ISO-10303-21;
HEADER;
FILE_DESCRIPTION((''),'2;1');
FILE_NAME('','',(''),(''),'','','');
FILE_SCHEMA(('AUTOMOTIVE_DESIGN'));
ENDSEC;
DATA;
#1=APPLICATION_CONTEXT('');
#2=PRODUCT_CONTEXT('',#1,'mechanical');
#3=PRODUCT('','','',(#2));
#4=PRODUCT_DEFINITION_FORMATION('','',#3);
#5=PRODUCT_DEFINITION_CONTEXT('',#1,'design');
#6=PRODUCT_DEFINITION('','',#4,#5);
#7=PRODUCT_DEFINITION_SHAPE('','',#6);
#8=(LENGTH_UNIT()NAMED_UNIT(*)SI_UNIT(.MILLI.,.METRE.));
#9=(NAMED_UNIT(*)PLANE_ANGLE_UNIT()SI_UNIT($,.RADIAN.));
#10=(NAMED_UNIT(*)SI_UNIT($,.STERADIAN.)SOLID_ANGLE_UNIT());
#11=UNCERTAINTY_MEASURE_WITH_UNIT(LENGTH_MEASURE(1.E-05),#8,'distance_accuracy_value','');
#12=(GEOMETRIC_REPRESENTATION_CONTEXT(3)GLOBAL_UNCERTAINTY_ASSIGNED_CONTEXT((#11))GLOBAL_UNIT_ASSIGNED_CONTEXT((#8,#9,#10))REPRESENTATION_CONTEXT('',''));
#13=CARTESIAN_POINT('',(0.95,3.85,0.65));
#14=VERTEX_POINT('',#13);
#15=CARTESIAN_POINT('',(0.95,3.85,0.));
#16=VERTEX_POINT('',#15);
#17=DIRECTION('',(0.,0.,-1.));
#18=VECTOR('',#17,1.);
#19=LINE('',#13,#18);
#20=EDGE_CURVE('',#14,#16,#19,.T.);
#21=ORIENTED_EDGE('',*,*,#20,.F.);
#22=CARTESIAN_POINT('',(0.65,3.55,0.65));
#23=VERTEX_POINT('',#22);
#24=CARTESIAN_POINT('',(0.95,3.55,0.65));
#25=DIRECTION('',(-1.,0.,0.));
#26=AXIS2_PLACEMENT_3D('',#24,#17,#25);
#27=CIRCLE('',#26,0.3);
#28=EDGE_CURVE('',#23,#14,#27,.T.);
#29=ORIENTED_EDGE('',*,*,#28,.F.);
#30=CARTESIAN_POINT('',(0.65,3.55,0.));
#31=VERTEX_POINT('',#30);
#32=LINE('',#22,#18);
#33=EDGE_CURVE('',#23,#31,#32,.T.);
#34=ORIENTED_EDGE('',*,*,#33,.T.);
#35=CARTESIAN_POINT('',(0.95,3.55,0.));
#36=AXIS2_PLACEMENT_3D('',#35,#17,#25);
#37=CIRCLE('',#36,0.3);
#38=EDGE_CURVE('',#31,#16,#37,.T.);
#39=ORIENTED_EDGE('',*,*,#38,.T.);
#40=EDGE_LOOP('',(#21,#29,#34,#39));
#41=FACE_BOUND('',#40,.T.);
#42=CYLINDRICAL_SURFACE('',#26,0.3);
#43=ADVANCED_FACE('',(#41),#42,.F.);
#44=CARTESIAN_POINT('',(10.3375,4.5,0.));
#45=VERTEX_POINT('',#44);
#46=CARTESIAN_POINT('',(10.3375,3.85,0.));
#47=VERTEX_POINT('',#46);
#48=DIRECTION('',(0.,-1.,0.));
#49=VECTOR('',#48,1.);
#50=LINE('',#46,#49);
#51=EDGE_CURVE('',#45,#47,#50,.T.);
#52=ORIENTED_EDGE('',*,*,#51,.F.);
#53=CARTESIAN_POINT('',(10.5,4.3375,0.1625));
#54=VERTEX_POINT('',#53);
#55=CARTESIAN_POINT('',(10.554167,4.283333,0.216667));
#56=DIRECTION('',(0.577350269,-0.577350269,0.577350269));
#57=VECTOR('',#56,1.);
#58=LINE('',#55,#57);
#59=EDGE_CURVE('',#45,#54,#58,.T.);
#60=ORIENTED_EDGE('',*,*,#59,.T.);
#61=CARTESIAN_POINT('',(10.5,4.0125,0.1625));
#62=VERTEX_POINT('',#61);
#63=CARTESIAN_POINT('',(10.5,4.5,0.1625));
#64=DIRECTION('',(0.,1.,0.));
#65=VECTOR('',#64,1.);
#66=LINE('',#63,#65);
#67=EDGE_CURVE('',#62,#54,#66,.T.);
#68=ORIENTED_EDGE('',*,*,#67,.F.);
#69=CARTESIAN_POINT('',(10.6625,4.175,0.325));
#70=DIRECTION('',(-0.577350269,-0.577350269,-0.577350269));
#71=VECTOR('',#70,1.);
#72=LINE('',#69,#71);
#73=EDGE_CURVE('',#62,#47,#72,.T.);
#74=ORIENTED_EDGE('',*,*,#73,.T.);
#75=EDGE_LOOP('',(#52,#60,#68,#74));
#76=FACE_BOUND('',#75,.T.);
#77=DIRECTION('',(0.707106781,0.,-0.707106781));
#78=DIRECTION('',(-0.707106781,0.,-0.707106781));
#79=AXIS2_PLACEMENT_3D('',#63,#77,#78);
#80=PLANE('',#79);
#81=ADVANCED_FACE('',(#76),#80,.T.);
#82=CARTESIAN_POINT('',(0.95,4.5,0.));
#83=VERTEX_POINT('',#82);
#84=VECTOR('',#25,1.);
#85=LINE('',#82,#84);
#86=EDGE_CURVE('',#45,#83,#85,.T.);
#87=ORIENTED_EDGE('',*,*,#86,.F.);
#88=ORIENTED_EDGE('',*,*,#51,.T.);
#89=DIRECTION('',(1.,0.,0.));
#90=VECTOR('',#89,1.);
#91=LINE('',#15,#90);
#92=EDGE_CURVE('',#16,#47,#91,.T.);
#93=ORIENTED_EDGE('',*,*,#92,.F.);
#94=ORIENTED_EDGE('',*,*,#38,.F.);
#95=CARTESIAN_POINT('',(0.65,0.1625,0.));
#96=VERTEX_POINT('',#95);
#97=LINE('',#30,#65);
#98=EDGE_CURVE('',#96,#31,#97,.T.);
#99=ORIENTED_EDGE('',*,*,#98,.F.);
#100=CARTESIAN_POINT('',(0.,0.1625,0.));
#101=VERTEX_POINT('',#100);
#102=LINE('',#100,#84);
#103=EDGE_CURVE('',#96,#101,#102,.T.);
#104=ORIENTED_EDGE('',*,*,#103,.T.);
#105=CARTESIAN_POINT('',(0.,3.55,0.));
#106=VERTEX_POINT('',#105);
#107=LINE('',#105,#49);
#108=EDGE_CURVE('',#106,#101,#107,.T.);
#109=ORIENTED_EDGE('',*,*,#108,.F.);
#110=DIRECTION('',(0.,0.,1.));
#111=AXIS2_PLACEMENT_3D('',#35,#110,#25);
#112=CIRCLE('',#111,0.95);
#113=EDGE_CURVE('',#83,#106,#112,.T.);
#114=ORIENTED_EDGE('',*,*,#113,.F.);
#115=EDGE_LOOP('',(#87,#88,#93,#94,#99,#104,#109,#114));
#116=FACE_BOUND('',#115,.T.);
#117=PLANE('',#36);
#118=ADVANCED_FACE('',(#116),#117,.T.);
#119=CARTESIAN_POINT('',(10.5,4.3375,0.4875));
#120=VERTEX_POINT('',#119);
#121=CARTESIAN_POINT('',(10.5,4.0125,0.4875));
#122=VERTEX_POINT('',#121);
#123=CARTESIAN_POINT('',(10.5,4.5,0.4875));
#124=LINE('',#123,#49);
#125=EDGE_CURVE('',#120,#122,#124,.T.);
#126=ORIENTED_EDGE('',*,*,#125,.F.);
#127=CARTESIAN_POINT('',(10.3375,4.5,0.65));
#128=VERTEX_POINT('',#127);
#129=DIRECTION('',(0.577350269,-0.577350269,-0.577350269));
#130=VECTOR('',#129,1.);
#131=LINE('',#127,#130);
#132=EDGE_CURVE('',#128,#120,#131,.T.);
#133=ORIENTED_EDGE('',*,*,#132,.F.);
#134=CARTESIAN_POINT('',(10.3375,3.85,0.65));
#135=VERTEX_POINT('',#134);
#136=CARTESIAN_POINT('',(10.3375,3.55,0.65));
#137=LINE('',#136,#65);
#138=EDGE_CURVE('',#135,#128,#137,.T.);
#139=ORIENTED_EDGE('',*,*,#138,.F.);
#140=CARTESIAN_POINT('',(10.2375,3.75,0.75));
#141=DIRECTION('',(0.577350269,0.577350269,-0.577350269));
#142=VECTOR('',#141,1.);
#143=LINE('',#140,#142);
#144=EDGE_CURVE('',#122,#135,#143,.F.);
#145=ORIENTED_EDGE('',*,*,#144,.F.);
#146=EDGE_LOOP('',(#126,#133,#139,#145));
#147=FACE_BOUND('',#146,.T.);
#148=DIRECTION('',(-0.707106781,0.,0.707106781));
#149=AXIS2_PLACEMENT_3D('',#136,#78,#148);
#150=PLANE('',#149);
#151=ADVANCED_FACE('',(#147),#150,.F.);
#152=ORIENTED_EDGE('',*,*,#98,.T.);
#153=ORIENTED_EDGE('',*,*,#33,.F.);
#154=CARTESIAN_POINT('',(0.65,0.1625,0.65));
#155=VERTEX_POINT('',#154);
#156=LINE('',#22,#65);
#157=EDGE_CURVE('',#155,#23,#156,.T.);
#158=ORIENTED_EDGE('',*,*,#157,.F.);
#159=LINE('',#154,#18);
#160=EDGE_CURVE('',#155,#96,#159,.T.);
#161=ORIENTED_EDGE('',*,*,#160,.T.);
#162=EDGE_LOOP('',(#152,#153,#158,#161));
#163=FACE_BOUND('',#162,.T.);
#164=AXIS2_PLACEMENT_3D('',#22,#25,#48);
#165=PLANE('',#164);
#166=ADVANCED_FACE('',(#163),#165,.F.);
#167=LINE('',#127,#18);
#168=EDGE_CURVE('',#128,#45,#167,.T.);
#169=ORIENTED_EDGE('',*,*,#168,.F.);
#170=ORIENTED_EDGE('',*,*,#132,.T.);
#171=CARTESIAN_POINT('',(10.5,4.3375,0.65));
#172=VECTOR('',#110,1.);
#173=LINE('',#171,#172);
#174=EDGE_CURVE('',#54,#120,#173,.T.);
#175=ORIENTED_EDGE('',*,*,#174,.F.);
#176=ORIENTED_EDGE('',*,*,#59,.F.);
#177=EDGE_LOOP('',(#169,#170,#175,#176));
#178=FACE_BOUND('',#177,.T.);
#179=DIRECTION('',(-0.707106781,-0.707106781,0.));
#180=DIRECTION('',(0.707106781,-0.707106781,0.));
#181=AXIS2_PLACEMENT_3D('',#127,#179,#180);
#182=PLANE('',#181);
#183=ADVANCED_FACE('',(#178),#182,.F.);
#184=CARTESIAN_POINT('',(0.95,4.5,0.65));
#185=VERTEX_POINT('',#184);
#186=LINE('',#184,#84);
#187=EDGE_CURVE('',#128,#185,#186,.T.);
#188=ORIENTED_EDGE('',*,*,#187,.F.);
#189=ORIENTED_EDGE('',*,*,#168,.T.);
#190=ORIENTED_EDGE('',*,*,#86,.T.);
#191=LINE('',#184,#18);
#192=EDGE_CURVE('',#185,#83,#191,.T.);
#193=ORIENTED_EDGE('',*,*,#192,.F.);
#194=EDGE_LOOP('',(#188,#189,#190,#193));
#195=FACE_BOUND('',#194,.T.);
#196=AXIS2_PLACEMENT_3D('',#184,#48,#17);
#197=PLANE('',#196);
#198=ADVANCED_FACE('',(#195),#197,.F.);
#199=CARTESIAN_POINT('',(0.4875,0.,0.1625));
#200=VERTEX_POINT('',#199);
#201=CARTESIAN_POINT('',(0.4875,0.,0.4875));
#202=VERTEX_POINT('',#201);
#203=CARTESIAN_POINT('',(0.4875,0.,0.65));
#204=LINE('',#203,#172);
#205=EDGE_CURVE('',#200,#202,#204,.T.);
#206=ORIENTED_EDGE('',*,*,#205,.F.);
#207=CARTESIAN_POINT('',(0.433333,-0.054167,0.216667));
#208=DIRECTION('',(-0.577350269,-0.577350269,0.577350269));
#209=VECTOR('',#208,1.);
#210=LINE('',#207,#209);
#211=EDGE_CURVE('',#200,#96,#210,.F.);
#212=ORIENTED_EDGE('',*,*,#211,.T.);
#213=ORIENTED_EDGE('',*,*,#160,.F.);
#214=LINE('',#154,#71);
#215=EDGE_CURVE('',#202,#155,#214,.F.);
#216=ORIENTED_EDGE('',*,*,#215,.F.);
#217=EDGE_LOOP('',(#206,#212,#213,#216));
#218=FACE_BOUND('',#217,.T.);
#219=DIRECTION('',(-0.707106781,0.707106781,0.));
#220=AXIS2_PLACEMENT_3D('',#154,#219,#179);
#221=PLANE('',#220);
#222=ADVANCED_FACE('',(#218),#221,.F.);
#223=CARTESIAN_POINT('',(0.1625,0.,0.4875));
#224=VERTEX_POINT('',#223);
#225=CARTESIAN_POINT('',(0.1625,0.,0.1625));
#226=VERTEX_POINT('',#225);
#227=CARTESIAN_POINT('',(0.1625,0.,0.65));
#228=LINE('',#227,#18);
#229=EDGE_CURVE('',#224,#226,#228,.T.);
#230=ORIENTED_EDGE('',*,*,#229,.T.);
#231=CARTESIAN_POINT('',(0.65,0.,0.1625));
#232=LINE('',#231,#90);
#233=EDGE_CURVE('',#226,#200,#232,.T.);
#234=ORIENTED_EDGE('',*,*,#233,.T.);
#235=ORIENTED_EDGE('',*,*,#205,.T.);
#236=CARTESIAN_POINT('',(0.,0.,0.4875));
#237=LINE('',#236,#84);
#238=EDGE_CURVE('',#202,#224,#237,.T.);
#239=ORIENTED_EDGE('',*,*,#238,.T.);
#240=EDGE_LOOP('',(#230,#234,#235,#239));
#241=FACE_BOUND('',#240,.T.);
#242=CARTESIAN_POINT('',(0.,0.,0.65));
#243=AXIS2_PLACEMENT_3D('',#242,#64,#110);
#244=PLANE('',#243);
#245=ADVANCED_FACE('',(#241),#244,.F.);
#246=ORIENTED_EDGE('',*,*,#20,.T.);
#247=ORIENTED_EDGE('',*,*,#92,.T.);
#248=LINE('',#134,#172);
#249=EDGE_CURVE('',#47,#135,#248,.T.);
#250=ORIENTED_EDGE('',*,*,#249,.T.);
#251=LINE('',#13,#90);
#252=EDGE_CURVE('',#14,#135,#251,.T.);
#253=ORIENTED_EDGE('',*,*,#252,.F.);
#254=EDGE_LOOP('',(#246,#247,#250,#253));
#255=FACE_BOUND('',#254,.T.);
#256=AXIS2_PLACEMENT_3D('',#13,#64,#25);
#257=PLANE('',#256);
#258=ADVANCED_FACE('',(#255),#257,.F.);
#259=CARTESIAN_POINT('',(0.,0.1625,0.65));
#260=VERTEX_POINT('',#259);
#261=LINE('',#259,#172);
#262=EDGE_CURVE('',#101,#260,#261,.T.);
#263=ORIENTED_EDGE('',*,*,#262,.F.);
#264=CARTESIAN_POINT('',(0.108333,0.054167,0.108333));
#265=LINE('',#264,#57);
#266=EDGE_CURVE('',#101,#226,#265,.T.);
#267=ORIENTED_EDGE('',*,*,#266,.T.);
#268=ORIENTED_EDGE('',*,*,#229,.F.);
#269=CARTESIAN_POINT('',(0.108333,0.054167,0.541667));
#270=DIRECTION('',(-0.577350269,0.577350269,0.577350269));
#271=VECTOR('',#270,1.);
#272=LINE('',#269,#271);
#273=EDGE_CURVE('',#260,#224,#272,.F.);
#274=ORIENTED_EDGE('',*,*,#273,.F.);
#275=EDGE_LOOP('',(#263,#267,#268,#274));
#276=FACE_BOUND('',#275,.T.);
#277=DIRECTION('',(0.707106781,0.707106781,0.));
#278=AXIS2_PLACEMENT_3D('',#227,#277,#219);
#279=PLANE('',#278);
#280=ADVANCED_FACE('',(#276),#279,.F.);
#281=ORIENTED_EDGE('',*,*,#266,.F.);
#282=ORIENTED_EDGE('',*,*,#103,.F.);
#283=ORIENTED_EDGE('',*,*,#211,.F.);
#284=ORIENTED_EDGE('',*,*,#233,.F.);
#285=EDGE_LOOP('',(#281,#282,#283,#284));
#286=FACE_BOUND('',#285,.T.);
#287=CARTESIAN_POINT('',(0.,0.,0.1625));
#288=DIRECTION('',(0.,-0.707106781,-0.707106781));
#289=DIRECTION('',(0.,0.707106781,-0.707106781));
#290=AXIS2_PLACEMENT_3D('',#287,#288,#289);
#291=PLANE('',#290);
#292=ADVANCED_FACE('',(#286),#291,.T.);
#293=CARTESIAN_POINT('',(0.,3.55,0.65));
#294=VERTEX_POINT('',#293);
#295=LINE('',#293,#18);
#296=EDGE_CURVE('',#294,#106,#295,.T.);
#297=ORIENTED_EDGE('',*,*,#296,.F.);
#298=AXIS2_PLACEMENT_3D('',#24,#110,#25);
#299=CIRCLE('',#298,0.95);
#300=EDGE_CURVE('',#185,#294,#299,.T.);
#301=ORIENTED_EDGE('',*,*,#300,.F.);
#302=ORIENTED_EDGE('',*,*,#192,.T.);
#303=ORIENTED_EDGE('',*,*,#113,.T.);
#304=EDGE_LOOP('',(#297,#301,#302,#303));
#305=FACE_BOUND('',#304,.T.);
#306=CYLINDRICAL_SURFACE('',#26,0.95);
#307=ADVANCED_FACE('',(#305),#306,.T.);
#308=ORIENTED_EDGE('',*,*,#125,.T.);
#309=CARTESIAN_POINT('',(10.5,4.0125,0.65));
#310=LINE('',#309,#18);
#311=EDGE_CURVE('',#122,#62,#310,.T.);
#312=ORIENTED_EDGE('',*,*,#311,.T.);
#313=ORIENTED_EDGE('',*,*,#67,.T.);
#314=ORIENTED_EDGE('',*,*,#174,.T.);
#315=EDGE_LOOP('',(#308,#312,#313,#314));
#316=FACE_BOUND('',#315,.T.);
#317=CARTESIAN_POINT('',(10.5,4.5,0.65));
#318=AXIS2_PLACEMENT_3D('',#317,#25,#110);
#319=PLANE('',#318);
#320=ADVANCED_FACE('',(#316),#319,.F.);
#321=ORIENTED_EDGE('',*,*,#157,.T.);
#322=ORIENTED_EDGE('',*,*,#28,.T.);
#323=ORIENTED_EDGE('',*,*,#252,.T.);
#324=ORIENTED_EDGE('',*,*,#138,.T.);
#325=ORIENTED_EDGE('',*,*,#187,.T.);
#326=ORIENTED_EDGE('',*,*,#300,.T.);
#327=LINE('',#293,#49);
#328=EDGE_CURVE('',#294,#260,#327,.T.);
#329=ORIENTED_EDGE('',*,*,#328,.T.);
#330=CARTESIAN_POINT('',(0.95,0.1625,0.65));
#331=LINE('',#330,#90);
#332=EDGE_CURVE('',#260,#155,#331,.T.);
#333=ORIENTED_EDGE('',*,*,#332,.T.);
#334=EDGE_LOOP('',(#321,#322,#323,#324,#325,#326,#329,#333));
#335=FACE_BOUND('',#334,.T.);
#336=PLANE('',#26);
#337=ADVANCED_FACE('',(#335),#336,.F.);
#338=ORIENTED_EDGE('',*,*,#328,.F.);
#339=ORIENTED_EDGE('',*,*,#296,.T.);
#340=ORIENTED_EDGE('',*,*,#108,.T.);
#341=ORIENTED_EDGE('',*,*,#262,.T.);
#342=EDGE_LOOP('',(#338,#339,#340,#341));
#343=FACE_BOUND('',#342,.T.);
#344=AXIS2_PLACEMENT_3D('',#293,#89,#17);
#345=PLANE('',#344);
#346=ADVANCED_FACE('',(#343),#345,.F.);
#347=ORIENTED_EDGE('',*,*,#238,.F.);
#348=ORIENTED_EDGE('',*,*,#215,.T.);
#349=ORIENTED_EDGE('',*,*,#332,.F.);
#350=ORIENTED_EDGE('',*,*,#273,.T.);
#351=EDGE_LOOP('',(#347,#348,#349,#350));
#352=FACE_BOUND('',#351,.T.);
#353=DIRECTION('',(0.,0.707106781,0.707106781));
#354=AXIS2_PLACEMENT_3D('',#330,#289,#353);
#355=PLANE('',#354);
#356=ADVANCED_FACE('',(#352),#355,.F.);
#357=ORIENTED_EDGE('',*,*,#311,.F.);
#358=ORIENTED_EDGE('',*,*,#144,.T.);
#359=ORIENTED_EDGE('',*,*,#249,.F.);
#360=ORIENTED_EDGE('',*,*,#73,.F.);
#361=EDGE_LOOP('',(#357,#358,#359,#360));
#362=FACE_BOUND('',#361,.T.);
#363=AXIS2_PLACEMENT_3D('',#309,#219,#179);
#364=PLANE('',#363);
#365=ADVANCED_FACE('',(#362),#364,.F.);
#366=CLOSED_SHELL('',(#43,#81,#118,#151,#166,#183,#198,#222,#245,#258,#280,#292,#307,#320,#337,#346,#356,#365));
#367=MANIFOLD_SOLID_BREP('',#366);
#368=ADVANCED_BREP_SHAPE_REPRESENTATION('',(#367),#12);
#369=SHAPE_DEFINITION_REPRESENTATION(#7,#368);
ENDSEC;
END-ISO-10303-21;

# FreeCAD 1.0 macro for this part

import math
import FreeCAD as App
import Part
import Sketcher
from FreeCAD import Vector
Q = App.Units.Quantity


def edges_at(feature, points):
    """Names of the edges that pass closest to the given points."""
    edges = feature.Shape.Edges
    near = lambda p: min(range(len(edges)), key=lambda i: edges[i].distToShape(Part.Vertex(*p))[0])
    return sorted({f"Edge{near(p) + 1}" for p in points})

doc = App.newDocument("Part")
body = doc.addObject("PartDesign::Body", "Body")

sketch1 = body.newObject("Sketcher::SketchObject", "Sketch")
sketch1.AttachmentSupport = (doc.getObject("XY_Plane"), [""])
sketch1.MapMode = "FlatFace"
sketch1.addGeometry([
    Part.LineSegment(Vector(0, 3.55, 0), Vector(0, 0, 0)),
    Part.LineSegment(Vector(0, 0, 0), Vector(0.65, 0, 0)),
    Part.LineSegment(Vector(0.65, 0, 0), Vector(0.65, 3.55, 0)),
    Part.ArcOfCircle(Part.Circle(Vector(0.95, 3.55, 0), Vector(0, 0, 1), 0.3), math.radians(90), math.radians(180)),
    Part.LineSegment(Vector(0.95, 3.85, 0), Vector(10.5, 3.85, 0)),
    Part.LineSegment(Vector(10.5, 3.85, 0), Vector(10.5, 4.5, 0)),
    Part.LineSegment(Vector(10.5, 4.5, 0), Vector(0.95, 4.5, 0)),
    Part.ArcOfCircle(Part.Circle(Vector(0.95, 3.55, 0), Vector(0, 0, 1), 0.95), math.radians(90), math.radians(180)),
], False)
sketch1.addConstraint([
    Sketcher.Constraint("Coincident", 0, 2, 1, 1),
    Sketcher.Constraint("Coincident", 1, 2, 2, 1),
    Sketcher.Constraint("Tangent", 2, 2, 3, 2),
    Sketcher.Constraint("Tangent", 3, 1, 4, 1),
    Sketcher.Constraint("Coincident", 4, 2, 5, 1),
    Sketcher.Constraint("Coincident", 5, 2, 6, 1),
    Sketcher.Constraint("Tangent", 6, 2, 7, 1),
    Sketcher.Constraint("Tangent", 7, 2, 0, 1),
    Sketcher.Constraint("Vertical", 0),
    Sketcher.Constraint("Horizontal", 1),
    Sketcher.Constraint("Vertical", 2),
    Sketcher.Constraint("Horizontal", 4),
    Sketcher.Constraint("Vertical", 5),
    Sketcher.Constraint("Horizontal", 6),
    Sketcher.Constraint("Coincident", 0, 2, -1, 1),
    Sketcher.Constraint("Coincident", 7, 3, 3, 3),
    Sketcher.Constraint("Radius", 3, Q("0.3 mm")),
    Sketcher.Constraint("Radius", 7, Q("0.95 mm")),
    Sketcher.Constraint("DistanceX", 4, 1, 4, 2, Q("9.55 mm")),
    Sketcher.Constraint("DistanceY", 0, 2, 0, 1, Q("3.55 mm")),
])
pad1 = body.newObject("PartDesign::Pad", "Pad")
pad1.Profile = sketch1
pad1.Length = 0.65
doc.recompute()

chamfer = body.newObject("PartDesign::Chamfer", "Chamfer")
chamfer.Base = (pad1, edges_at(pad1, [
    (0, 0, 0.325),
    (0.65, 0, 0.325),
    (0.325, 0, 0),
    (0.325, 0, 0.65),
    (10.5, 3.85, 0.325),
    (10.5, 4.5, 0.325),
    (10.5, 4.175, 0),
    (10.5, 4.175, 0.65),
]))
chamfer.Size = 0.1625

doc.recompute()
